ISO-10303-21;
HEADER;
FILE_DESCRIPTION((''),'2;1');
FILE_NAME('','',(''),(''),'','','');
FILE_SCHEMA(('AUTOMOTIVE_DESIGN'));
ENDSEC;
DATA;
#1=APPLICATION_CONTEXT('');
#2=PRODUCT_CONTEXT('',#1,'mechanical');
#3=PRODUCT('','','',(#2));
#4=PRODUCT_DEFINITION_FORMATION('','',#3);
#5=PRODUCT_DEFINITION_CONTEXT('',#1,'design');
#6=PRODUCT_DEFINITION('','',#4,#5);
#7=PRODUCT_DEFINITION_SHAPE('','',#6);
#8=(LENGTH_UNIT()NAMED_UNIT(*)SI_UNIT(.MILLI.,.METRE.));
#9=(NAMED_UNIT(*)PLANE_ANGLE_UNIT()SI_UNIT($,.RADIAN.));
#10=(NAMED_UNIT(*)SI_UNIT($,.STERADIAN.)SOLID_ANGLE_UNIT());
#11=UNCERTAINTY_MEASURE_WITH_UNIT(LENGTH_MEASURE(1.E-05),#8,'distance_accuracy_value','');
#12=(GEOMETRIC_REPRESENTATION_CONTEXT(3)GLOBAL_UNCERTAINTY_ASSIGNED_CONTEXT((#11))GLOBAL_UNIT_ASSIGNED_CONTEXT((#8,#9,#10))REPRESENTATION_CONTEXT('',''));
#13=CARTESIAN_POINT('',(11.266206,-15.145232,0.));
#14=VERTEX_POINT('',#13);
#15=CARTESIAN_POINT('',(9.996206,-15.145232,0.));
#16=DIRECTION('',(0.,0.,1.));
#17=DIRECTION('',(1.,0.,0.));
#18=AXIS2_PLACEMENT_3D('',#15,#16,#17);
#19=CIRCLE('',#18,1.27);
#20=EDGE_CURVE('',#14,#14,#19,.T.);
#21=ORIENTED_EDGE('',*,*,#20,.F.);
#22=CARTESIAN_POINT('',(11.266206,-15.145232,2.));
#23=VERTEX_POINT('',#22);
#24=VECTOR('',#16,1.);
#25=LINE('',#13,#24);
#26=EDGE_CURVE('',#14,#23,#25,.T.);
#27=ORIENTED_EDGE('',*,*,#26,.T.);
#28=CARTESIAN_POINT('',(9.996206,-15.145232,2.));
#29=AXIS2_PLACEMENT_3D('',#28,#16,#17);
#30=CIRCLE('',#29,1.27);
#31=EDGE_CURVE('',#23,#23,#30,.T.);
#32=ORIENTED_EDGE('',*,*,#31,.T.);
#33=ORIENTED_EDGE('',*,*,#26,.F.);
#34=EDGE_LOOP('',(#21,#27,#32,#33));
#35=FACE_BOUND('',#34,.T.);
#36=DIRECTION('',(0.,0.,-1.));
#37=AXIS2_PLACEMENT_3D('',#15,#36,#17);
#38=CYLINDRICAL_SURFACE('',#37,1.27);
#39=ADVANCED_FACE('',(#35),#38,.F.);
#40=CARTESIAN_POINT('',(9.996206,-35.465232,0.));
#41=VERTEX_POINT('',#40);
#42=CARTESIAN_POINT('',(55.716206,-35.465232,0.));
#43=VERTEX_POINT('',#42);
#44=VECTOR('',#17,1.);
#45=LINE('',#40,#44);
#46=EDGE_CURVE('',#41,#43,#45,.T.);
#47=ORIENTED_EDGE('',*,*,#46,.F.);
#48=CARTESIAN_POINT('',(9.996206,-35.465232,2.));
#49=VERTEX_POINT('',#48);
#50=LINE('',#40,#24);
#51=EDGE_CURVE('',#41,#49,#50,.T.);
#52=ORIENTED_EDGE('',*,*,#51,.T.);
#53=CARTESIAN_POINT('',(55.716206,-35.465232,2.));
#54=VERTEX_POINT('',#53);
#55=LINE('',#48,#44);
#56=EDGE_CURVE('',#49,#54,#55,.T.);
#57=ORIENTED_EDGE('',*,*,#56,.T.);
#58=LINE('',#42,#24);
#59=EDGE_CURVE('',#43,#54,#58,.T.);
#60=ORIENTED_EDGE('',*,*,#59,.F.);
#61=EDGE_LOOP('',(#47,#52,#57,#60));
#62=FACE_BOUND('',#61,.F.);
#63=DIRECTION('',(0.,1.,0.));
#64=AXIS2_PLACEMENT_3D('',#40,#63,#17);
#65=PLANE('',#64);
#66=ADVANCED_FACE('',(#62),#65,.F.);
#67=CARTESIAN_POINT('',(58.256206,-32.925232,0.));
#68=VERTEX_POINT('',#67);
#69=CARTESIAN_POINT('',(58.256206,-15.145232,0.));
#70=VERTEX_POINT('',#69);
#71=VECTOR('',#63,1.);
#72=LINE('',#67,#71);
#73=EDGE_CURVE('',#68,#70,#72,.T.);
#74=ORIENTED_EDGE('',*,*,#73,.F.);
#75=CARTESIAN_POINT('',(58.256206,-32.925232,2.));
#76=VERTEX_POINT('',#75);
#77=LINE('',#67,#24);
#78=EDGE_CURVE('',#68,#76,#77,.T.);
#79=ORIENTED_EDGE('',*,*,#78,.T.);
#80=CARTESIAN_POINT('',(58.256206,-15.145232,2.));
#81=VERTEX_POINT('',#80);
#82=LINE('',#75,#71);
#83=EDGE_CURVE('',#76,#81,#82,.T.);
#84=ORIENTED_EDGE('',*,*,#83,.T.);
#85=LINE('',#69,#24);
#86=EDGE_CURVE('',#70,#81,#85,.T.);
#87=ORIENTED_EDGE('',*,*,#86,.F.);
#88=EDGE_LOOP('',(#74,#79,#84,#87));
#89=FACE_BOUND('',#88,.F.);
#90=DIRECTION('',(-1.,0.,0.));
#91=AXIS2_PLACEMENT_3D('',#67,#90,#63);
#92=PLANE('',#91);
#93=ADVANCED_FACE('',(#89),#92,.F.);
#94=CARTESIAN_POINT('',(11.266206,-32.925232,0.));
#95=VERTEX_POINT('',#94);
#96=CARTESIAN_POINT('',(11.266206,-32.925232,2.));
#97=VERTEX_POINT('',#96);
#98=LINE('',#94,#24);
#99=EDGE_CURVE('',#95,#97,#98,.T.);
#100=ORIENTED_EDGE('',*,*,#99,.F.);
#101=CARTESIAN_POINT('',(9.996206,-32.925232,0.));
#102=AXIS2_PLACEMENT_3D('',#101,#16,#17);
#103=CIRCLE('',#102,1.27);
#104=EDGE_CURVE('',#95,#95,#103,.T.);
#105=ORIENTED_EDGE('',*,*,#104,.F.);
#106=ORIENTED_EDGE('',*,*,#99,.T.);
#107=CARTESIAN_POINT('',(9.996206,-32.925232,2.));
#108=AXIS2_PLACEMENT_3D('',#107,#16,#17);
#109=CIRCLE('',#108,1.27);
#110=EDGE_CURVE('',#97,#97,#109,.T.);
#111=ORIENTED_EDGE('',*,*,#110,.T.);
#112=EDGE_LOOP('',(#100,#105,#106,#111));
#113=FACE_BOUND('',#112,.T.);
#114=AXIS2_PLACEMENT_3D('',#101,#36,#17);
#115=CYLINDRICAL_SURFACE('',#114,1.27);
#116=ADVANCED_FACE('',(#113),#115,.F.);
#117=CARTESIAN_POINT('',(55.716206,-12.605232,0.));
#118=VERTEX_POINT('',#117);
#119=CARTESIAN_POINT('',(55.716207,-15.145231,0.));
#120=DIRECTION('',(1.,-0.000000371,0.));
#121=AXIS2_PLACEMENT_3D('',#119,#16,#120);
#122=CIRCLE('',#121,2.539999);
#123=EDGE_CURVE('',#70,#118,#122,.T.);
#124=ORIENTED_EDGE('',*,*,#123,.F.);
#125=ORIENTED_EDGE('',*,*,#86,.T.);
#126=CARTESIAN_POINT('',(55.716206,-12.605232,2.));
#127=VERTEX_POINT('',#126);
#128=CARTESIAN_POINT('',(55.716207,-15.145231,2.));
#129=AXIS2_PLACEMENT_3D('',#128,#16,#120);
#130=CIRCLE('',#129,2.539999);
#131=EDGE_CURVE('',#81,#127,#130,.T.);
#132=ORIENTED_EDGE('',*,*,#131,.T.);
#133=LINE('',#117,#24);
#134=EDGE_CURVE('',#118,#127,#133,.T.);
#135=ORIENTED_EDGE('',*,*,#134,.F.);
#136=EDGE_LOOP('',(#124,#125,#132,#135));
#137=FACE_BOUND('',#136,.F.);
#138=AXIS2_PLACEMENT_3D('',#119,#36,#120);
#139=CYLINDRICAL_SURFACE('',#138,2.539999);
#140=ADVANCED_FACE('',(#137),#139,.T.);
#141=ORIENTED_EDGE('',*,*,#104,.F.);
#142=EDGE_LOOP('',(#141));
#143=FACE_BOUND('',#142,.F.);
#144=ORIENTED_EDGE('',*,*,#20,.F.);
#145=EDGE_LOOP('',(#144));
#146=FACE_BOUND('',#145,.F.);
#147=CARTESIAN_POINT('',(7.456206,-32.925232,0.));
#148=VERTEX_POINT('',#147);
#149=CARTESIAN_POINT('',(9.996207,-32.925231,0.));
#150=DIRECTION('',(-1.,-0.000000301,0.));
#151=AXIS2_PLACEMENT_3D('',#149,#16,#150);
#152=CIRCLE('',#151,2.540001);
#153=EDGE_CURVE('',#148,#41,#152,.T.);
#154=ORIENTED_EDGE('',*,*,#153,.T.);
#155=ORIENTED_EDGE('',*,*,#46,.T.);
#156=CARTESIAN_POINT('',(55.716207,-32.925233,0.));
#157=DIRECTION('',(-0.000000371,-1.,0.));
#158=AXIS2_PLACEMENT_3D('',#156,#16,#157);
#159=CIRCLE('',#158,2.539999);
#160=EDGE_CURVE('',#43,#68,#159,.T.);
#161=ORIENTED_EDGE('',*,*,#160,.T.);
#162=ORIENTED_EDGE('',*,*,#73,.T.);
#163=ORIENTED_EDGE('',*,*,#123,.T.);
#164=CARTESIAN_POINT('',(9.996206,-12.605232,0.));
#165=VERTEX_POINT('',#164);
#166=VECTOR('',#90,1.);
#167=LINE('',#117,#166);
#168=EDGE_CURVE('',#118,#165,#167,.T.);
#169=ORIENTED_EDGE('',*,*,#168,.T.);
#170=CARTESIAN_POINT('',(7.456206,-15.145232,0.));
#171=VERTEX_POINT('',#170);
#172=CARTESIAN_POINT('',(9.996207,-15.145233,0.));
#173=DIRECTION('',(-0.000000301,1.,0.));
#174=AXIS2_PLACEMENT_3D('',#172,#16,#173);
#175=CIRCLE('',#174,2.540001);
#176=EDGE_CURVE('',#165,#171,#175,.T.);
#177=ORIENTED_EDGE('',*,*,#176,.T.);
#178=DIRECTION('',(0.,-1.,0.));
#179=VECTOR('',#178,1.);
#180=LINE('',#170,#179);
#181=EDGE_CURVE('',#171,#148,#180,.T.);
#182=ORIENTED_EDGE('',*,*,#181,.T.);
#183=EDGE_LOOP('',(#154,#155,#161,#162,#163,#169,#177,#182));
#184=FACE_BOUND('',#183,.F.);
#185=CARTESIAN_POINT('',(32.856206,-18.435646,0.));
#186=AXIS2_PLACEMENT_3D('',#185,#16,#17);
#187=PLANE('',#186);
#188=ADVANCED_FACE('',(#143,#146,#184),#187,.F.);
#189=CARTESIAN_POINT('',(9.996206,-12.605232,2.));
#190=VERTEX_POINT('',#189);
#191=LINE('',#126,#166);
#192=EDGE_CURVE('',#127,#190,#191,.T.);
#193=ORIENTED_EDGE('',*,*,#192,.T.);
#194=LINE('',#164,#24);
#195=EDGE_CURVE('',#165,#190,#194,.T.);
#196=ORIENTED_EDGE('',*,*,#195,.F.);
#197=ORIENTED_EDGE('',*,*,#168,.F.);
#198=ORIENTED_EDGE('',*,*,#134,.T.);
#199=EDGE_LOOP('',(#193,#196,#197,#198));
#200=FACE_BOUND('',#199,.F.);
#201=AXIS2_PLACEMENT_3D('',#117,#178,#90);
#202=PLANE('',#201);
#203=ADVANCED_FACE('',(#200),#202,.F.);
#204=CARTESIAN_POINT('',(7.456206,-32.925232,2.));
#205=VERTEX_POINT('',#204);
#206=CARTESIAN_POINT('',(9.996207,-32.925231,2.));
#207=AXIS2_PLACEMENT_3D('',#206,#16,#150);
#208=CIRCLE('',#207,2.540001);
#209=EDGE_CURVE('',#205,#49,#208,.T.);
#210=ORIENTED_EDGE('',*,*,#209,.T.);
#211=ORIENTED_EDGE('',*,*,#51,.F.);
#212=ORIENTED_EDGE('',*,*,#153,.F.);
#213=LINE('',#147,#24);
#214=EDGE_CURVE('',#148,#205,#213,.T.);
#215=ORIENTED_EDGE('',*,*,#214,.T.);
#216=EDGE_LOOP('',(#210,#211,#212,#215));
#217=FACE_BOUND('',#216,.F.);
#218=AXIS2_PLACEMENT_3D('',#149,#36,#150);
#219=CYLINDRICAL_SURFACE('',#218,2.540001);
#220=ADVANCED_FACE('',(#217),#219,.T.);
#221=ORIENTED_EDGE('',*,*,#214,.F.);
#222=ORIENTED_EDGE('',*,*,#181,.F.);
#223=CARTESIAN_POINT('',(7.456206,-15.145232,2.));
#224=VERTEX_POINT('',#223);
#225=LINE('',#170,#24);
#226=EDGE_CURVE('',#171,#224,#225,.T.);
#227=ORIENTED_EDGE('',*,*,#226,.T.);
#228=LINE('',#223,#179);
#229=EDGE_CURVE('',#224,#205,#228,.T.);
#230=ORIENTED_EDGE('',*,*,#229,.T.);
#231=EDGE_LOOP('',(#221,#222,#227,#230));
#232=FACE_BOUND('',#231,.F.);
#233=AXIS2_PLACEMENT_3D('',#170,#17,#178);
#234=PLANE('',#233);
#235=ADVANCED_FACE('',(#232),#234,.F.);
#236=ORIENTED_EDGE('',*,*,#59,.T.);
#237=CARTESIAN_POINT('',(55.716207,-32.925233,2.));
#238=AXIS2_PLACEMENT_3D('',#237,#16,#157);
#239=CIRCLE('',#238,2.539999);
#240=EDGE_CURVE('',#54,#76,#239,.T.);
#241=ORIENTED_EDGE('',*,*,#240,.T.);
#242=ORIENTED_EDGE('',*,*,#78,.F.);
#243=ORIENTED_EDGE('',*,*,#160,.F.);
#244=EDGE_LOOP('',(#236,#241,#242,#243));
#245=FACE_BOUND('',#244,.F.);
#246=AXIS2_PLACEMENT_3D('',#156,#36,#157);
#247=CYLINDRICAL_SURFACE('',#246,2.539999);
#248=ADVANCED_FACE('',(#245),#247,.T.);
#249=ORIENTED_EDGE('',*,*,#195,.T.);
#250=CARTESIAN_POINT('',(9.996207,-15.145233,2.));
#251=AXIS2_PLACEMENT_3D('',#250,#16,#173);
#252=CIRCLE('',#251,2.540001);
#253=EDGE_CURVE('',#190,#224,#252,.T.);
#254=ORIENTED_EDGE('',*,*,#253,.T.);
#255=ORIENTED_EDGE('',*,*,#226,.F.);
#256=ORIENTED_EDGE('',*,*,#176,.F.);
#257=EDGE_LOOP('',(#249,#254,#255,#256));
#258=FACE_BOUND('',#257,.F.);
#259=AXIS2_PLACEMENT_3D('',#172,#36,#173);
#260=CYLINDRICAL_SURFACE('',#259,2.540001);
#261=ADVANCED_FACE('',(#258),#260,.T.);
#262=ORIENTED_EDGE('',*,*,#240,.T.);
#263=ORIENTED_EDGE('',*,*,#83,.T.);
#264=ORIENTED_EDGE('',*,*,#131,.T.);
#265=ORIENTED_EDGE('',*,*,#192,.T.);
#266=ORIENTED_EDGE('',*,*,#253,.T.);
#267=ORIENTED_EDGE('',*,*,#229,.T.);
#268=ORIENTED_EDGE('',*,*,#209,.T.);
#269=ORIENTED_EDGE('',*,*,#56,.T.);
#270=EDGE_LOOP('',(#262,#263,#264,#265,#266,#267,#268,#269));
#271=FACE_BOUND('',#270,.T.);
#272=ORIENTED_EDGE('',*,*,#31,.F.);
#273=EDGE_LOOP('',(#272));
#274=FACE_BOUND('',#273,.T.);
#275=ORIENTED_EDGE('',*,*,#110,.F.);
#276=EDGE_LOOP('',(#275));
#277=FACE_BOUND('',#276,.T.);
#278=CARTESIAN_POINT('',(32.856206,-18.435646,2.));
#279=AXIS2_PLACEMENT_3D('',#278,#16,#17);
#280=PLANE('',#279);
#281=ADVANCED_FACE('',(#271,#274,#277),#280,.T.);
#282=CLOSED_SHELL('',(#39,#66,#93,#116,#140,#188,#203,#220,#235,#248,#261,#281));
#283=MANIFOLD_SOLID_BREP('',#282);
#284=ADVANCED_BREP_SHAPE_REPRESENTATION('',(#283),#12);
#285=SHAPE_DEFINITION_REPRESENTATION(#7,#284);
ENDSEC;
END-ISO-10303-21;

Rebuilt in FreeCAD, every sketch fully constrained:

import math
import FreeCAD as App
import Part
import Sketcher
Q = App.Units.Quantity

doc = App.newDocument("Part")
body = doc.addObject("PartDesign::Body", "Body")

# Sketch on XY plane
sketch1 = doc.addObject("Sketcher::SketchObject", "Sketch")
body.addObject(sketch1)
sketch1.AttachmentSupport = (doc.XY_Plane, [""])
sketch1.MapMode = "FlatFace"
sketch1.addGeometry(Part.LineSegment(App.Vector(55.7, -12.6, 0), App.Vector(10, -12.6, 0)), False)
sketch1.addGeometry(Part.ArcOfCircle(Part.Circle(App.Vector(10, -15.1, 0), App.Vector(0, 0, 1), 2.5), math.radians(90), math.radians(180)), False)
sketch1.addGeometry(Part.LineSegment(App.Vector(7.5, -15.1, 0), App.Vector(7.5, -32.9, 0)), False)
sketch1.addGeometry(Part.ArcOfCircle(Part.Circle(App.Vector(10, -32.9, 0), App.Vector(0, 0, 1), 2.5), math.radians(-180), math.radians(-90)), False)
sketch1.addGeometry(Part.LineSegment(App.Vector(10, -35.5, 0), App.Vector(55.7, -35.5, 0)), False)
sketch1.addGeometry(Part.ArcOfCircle(Part.Circle(App.Vector(55.7, -32.9, 0), App.Vector(0, 0, 1), 2.5), math.radians(-90), math.radians(0)), False)
sketch1.addGeometry(Part.LineSegment(App.Vector(58.3, -32.9, 0), App.Vector(58.3, -15.1, 0)), False)
sketch1.addGeometry(Part.ArcOfCircle(Part.Circle(App.Vector(55.7, -15.1, 0), App.Vector(0, 0, 1), 2.5), math.radians(0), math.radians(90)), False)
sketch1.addGeometry(Part.Circle(App.Vector(10, -32.9, 0), App.Vector(0, 0, 1), 1.3), False)
sketch1.addGeometry(Part.Circle(App.Vector(10, -15.1, 0), App.Vector(0, 0, 1), 1.3), False)
sketch1.addConstraint(Sketcher.Constraint("Tangent", 0, 2, 1, 1))
sketch1.addConstraint(Sketcher.Constraint("Tangent", 1, 2, 2, 1))
sketch1.addConstraint(Sketcher.Constraint("Tangent", 2, 2, 3, 1))
sketch1.addConstraint(Sketcher.Constraint("Tangent", 3, 2, 4, 1))
sketch1.addConstraint(Sketcher.Constraint("Tangent", 4, 2, 5, 1))
sketch1.addConstraint(Sketcher.Constraint("Tangent", 5, 2, 6, 1))
sketch1.addConstraint(Sketcher.Constraint("Tangent", 6, 2, 7, 1))
sketch1.addConstraint(Sketcher.Constraint("Tangent", 7, 2, 0, 1))
sketch1.addConstraint(Sketcher.Constraint("Horizontal", 0))
sketch1.addConstraint(Sketcher.Constraint("Vertical", 2))
sketch1.addConstraint(Sketcher.Constraint("Horizontal", 4))
sketch1.addConstraint(Sketcher.Constraint("Vertical", 6))
sketch1.addConstraint(Sketcher.Constraint("Coincident", 8, 3, 3, 3))
sketch1.addConstraint(Sketcher.Constraint("Coincident", 9, 3, 1, 3))
sketch1.addConstraint(Sketcher.Constraint("Equal", 1, 3))
sketch1.addConstraint(Sketcher.Constraint("Equal", 3, 5))
sketch1.addConstraint(Sketcher.Constraint("Equal", 5, 7))
sketch1.addConstraint(Sketcher.Constraint("Equal", 8, 9))
sketch1.addConstraint(Sketcher.Constraint("Diameter", 8, Q("0.1 in")))
sketch1.addConstraint(Sketcher.Constraint("Radius", 1, Q("0.1 in")))
sketch1.addConstraint(Sketcher.Constraint("DistanceX", 0, 2, 0, 1, Q("1.8 in")))
sketch1.addConstraint(Sketcher.Constraint("DistanceY", 2, 2, 2, 1, Q("0.7 in")))
sketch1.addConstraint(Sketcher.Constraint("DistanceY", 3, 3, -1, 1, Q("32.925231 mm")))
sketch1.addConstraint(Sketcher.Constraint("DistanceX", -1, 1, 1, 3, Q("9.996207 mm")))
pad1 = doc.addObject("PartDesign::Pad", "Pad")
body.addObject(pad1)
pad1.Profile = sketch1
pad1.Length = 2

doc.recompute()
